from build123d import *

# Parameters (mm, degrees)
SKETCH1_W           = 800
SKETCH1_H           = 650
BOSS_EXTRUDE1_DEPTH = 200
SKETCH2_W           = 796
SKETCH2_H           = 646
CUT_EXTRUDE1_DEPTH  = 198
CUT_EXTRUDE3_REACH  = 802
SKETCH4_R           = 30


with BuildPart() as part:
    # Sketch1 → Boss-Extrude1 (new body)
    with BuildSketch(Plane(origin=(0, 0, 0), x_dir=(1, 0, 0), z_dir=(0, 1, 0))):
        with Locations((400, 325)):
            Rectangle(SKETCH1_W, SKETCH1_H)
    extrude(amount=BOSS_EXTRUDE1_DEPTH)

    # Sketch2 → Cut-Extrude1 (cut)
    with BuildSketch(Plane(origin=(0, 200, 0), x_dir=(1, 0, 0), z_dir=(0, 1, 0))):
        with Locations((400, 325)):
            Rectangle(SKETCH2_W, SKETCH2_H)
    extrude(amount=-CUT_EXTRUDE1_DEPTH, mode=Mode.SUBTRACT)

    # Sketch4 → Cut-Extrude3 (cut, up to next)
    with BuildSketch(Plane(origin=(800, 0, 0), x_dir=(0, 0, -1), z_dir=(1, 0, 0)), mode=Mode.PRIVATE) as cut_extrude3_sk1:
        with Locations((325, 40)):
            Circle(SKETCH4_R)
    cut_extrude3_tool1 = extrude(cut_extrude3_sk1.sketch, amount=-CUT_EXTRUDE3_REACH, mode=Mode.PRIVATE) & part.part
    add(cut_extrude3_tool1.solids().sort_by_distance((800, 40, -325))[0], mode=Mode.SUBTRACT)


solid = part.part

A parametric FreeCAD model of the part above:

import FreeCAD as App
import Part
import Sketcher
Q = App.Units.Quantity

doc = App.newDocument("Part")
params = doc.addObject("Spreadsheet::Sheet", "Params")
for row, (alias, value) in enumerate([
    ("sketch1_width", "800 mm"),
    ("sketch1_height", "650 mm"),
    ("pad1_length", "200 mm"),
    ("sketch2_width", "796 mm"),
    ("sketch2_height", "646 mm"),
    ("pocket1_length", "198 mm"),
    ("sketch3_diameter", "60 mm"),
], start=1):
    params.set(f"A{row}", alias)
    params.set(f"B{row}", "=" + value)
    params.setAlias(f"B{row}", alias)

body = doc.addObject("PartDesign::Body", "Body")

# Sketch on XZ plane
sketch1 = doc.addObject("Sketcher::SketchObject", "Sketch")
body.addObject(sketch1)
sketch1.AttachmentSupport = (doc.XZ_Plane, [""])
sketch1.MapMode = "FlatFace"
sketch1.addGeometry(Part.LineSegment(App.Vector(0, -650, 0), App.Vector(0, 0, 0)), False)
sketch1.addGeometry(Part.LineSegment(App.Vector(0, 0, 0), App.Vector(800, 0, 0)), False)
sketch1.addGeometry(Part.LineSegment(App.Vector(800, 0, 0), App.Vector(800, -650, 0)), False)
sketch1.addGeometry(Part.LineSegment(App.Vector(800, -650, 0), App.Vector(0, -650, 0)), False)
sketch1.addConstraint(Sketcher.Constraint("Coincident", 0, 2, 1, 1))
sketch1.addConstraint(Sketcher.Constraint("Coincident", 1, 2, 2, 1))
sketch1.addConstraint(Sketcher.Constraint("Coincident", 2, 2, 3, 1))
sketch1.addConstraint(Sketcher.Constraint("Coincident", 3, 2, 0, 1))
sketch1.addConstraint(Sketcher.Constraint("Vertical", 0))
sketch1.addConstraint(Sketcher.Constraint("Horizontal", 1))
sketch1.addConstraint(Sketcher.Constraint("Vertical", 2))
sketch1.addConstraint(Sketcher.Constraint("Horizontal", 3))
sketch1.addConstraint(Sketcher.Constraint("Coincident", 0, 2, -1, 1))
sketch1.addConstraint(Sketcher.Constraint("DistanceX", 1, 1, 1, 2, Q("800 mm")))
sketch1.addConstraint(Sketcher.Constraint("DistanceY", 0, 1, 0, 2, Q("650 mm")))
sketch1.setExpression("Constraints[9]", "Params.sketch1_width")
sketch1.setExpression("Constraints[10]", "Params.sketch1_height")
pad1 = doc.addObject("PartDesign::Pad", "Pad")
body.addObject(pad1)
pad1.Profile = sketch1
pad1.setExpression("Length", "Params.pad1_length")
pad1.Reversed = True

# Sketch on XZ plane
sketch2 = doc.addObject("Sketcher::SketchObject", "Sketch001")
body.addObject(sketch2)
sketch2.AttachmentSupport = (doc.XZ_Plane, [""])
sketch2.MapMode = "FlatFace"
sketch2.AttachmentOffset = App.Placement(App.Vector(0, 0, -200), App.Rotation())
sketch2.addGeometry(Part.LineSegment(App.Vector(2, -648, 0), App.Vector(2, -2, 0)), False)
sketch2.addGeometry(Part.LineSegment(App.Vector(2, -2, 0), App.Vector(798, -2, 0)), False)
sketch2.addGeometry(Part.LineSegment(App.Vector(798, -2, 0), App.Vector(798, -648, 0)), False)
sketch2.addGeometry(Part.LineSegment(App.Vector(798, -648, 0), App.Vector(2, -648, 0)), False)
sketch2.addConstraint(Sketcher.Constraint("Coincident", 0, 2, 1, 1))
sketch2.addConstraint(Sketcher.Constraint("Coincident", 1, 2, 2, 1))
sketch2.addConstraint(Sketcher.Constraint("Coincident", 2, 2, 3, 1))
sketch2.addConstraint(Sketcher.Constraint("Coincident", 3, 2, 0, 1))
sketch2.addConstraint(Sketcher.Constraint("Vertical", 0))
sketch2.addConstraint(Sketcher.Constraint("Horizontal", 1))
sketch2.addConstraint(Sketcher.Constraint("Vertical", 2))
sketch2.addConstraint(Sketcher.Constraint("Horizontal", 3))
sketch2.addConstraint(Sketcher.Constraint("DistanceX", 1, 1, 1, 2, Q("796 mm")))
sketch2.addConstraint(Sketcher.Constraint("DistanceY", 0, 1, 0, 2, Q("646 mm")))
sketch2.addConstraint(Sketcher.Constraint("DistanceX", -1, 1, 0, 2, Q("2 mm")))
sketch2.addConstraint(Sketcher.Constraint("DistanceY", 0, 2, -1, 1, Q("2 mm")))
sketch2.setExpression("Constraints[8]", "Params.sketch2_width")
sketch2.setExpression("Constraints[9]", "Params.sketch2_height")
pocket1 = doc.addObject("PartDesign::Pocket", "Pocket")
body.addObject(pocket1)
pocket1.Profile = sketch2
pocket1.setExpression("Length", "Params.pocket1_length")
pocket1.Reversed = True

# Sketch on YZ plane
sketch3 = doc.addObject("Sketcher::SketchObject", "Sketch002")
body.addObject(sketch3)
sketch3.AttachmentSupport = (doc.YZ_Plane, [""])
sketch3.MapMode = "FlatFace"
sketch3.AttachmentOffset = App.Placement(App.Vector(0, 0, 800), App.Rotation())
sketch3.addGeometry(Part.Circle(App.Vector(40, -325, 0), App.Vector(0, 0, 1), 30), False)
sketch3.addConstraint(Sketcher.Constraint("Diameter", 0, Q("60 mm")))
sketch3.addConstraint(Sketcher.Constraint("DistanceX", -1, 1, 0, 3, Q("40 mm")))
sketch3.addConstraint(Sketcher.Constraint("DistanceY", 0, 3, -1, 1, Q("325 mm")))
sketch3.setExpression("Constraints[0]", "Params.sketch3_diameter")
pocket2 = doc.addObject("PartDesign::Pocket", "Pocket001")
body.addObject(pocket2)
pocket2.Profile = sketch3
pocket2.Type = "UpToFirst"

doc.recompute()
